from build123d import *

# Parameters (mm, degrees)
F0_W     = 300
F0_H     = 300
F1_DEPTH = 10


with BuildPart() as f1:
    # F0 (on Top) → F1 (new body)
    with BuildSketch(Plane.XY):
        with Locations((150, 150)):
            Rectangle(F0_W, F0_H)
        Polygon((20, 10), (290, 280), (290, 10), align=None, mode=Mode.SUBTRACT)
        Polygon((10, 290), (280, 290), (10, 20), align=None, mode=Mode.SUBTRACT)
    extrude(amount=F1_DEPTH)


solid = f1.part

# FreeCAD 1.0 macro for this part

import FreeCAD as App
import Part
import Sketcher

V = App.Vector

doc = App.newDocument("Part")
body = doc.addObject("PartDesign::Body", "Body")

sketch1 = body.newObject("Sketcher::SketchObject", "Sketch")
sketch1.AttachmentSupport = (doc.getObject("XY_Plane"), [""])
sketch1.MapMode = "FlatFace"
sketch1.addGeometry([
    Part.LineSegment(V(0, 300, 0), V(0, 0, 0)),
    Part.LineSegment(V(0, 0, 0), V(300, 0, 0)),
    Part.LineSegment(V(300, 0, 0), V(300, 300, 0)),
    Part.LineSegment(V(300, 300, 0), V(0, 300, 0)),
    Part.LineSegment(V(290, 10, 0), V(20, 10, 0)),
    Part.LineSegment(V(20, 10, 0), V(290, 280, 0)),
    Part.LineSegment(V(290, 280, 0), V(290, 10, 0)),
    Part.LineSegment(V(10, 20, 0), V(10, 290, 0)),
    Part.LineSegment(V(10, 290, 0), V(280, 290, 0)),
    Part.LineSegment(V(280, 290, 0), V(10, 20, 0)),
], False)
sketch1.addConstraint([
    Sketcher.Constraint("Coincident", 0, 2, 1, 1),
    Sketcher.Constraint("Coincident", 1, 2, 2, 1),
    Sketcher.Constraint("Coincident", 2, 2, 3, 1),
    Sketcher.Constraint("Coincident", 3, 2, 0, 1),
    Sketcher.Constraint("Coincident", 4, 2, 5, 1),
    Sketcher.Constraint("Coincident", 5, 2, 6, 1),
    Sketcher.Constraint("Coincident", 6, 2, 4, 1),
    Sketcher.Constraint("Coincident", 7, 2, 8, 1),
    Sketcher.Constraint("Coincident", 8, 2, 9, 1),
    Sketcher.Constraint("Coincident", 9, 2, 7, 1),
    Sketcher.Constraint("Vertical", 0),
    Sketcher.Constraint("Horizontal", 1),
    Sketcher.Constraint("Vertical", 2),
    Sketcher.Constraint("Horizontal", 3),
    Sketcher.Constraint("Horizontal", 4),
    Sketcher.Constraint("Vertical", 6),
    Sketcher.Constraint("Vertical", 7),
    Sketcher.Constraint("Horizontal", 8),
    Sketcher.Constraint("Coincident", 0, 2, -1, 1),
    Sketcher.Constraint("Parallel", 5, 9),
    Sketcher.Constraint("Equal", 4, 8),
    Sketcher.Constraint("Equal", 3, 0),
    Sketcher.Constraint("Equal", 8, 6),
    Sketcher.Constraint("DistanceX", 1, 1, 1, 2, 300.0),
    Sketcher.Constraint("DistanceX", 4, 2, 4, 1, 270.0),
    Sketcher.Constraint("DistanceX", -1, 1, 4, 2, 20.0),
    Sketcher.Constraint("DistanceY", -1, 1, 4, 2, 10.0),
    Sketcher.Constraint("DistanceX", -1, 1, 7, 2, 10.0),
    Sketcher.Constraint("DistanceY", -1, 1, 7, 2, 290.0),
])
pad1 = body.newObject("PartDesign::Pad", "Pad")
pad1.Profile = sketch1
pad1.Length = 10

doc.recompute()
